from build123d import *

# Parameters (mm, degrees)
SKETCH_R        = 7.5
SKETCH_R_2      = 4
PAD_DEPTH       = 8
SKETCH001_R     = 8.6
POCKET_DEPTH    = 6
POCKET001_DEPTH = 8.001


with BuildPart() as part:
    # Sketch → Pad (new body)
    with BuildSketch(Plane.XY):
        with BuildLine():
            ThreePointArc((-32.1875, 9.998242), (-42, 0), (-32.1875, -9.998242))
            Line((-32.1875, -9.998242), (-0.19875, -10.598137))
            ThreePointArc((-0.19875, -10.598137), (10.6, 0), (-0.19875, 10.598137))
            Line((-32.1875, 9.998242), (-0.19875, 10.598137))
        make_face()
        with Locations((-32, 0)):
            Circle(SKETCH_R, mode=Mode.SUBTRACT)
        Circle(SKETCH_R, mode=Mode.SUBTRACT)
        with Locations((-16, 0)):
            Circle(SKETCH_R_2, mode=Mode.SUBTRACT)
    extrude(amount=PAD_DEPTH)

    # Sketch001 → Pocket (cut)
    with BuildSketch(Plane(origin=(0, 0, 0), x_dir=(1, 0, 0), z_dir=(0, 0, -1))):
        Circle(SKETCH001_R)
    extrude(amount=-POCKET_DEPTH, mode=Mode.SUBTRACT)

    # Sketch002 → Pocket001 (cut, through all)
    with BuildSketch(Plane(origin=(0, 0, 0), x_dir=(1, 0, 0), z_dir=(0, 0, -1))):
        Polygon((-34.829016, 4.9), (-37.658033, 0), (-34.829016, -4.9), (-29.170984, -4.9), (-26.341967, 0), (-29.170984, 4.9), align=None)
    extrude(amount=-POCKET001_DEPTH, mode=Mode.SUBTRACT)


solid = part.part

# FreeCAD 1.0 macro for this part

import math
import FreeCAD as App
import Part
import Sketcher
from FreeCAD import Vector
Q = App.Units.Quantity


def add_polygon(sketch, points):
    """Adds a closed chain of lines whose ends are joined by coincident constraints."""
    first, n = sketch.GeometryCount, len(points)
    for a, b in zip(points, points[1:] + points[:1]):
        sketch.addGeometry(Part.LineSegment(App.Vector(*a, 0), App.Vector(*b, 0)), False)
    for i in range(n):
        sketch.addConstraint(Sketcher.Constraint("Coincident", first + i, 2, first + (i + 1) % n, 1))

doc = App.newDocument("Part")
body = doc.addObject("PartDesign::Body", "Body")

sketch1 = body.newObject("Sketcher::SketchObject", "Sketch")
sketch1.AttachmentSupport = (doc.getObject("XY_Plane"), [""])
sketch1.MapMode = "FlatFace"
sketch1.addGeometry([
    Part.ArcOfCircle(Part.Circle(Vector(-32, 0, 0), Vector(0, 0, 1), 10), math.radians(91.074359), math.radians(268.925641)),
    Part.LineSegment(Vector(-32.1875, -9.998242, 0), Vector(-0.19875, -10.598137, 0)),
    Part.ArcOfCircle(Part.Circle(Vector(0, 0, 0), Vector(0, 0, 1), 10.6), math.radians(-91.074356), math.radians(91.074356)),
    Part.LineSegment(Vector(-0.19875, 10.598137, 0), Vector(-32.1875, 9.998242, 0)),
    Part.Circle(Vector(-32, 0, 0), Vector(0, 0, 1), 7.5),
    Part.Circle(Vector(-16, 0, 0), Vector(0, 0, 1), 4),
    Part.Circle(Vector(0, 0, 0), Vector(0, 0, 1), 7.5),
], False)
sketch1.addConstraint([
    Sketcher.Constraint("Tangent", 0, 2, 1, 1),
    Sketcher.Constraint("Tangent", 1, 2, 2, 1),
    Sketcher.Constraint("Tangent", 2, 2, 3, 1),
    Sketcher.Constraint("Tangent", 3, 2, 0, 1),
    Sketcher.Constraint("Coincident", 2, 3, -1, 1),
    Sketcher.Constraint("Coincident", 6, 3, -1, 1),
    Sketcher.Constraint("Coincident", 4, 3, 0, 3),
    Sketcher.Constraint("Equal", 4, 6),
    Sketcher.Constraint("PointOnObject", 0, 3, -1),
    Sketcher.Constraint("PointOnObject", 5, 3, -1),
    Sketcher.Constraint("Diameter", 4, 15.0),
    Sketcher.Constraint("Diameter", 5, 8.0),
    Sketcher.Constraint("Radius", 0, 10.0),
    Sketcher.Constraint("Radius", 2, 10.6),
    Sketcher.Constraint("DistanceX", 0, 3, -1, 1, 32.0),
    Sketcher.Constraint("DistanceX", 5, 3, -1, 1, 16.0),
])
pad1 = body.newObject("PartDesign::Pad", "Pad")
pad1.Profile = sketch1
pad1.Length = 8

sketch2 = body.newObject("Sketcher::SketchObject", "Sketch001")
sketch2.AttachmentSupport = (doc.getObject("XY_Plane"), [""])
sketch2.MapMode = "FlatFace"
sketch2.addGeometry(Part.Circle(Vector(0, 0, 0), Vector(0, 0, 1), 8.6), False)
sketch2.addConstraint([
    Sketcher.Constraint("Coincident", 0, 3, -1, 1),
    Sketcher.Constraint("Diameter", 0, 17.2),
])
pocket1 = body.newObject("PartDesign::Pocket", "Pocket")
pocket1.Profile = sketch2
pocket1.Length = 6
pocket1.Reversed = True

sketch3 = body.newObject("Sketcher::SketchObject", "Sketch002")
sketch3.AttachmentSupport = (doc.getObject("XY_Plane"), [""])
sketch3.MapMode = "FlatFace"
add_polygon(sketch3, [(-34.829016, -4.9), (-37.658033, 0), (-34.829016, 4.9), (-29.170984, 4.9), (-26.341967, 0), (-29.170984, -4.9)])
sketch3.addConstraint([
    Sketcher.Constraint("Horizontal", 2),
    Sketcher.Constraint("Horizontal", 5),
    Sketcher.Constraint("Symmetric", 2, 2, 4, 2, -1),
    Sketcher.Constraint("PointOnObject", 0, 2, -1),
    Sketcher.Constraint("PointOnObject", 3, 2, -1),
    Sketcher.Constraint("Parallel", 0, 3),
    Sketcher.Constraint("Parallel", 1, 4),
    Sketcher.Constraint("Angle", 0, Q("120.000006 deg")),
    Sketcher.Constraint("DistanceY", -1, 1, 1, 2, 4.9),
    Sketcher.Constraint("DistanceX", 2, 1, 2, 2, 5.658032),
    Sketcher.Constraint("DistanceX", 0, 2, -1, 1, 37.658033),
])
pocket2 = body.newObject("PartDesign::Pocket", "Pocket001")
pocket2.Profile = sketch3
pocket2.Type = "ThroughAll"
pocket2.Reversed = True

doc.recompute()
